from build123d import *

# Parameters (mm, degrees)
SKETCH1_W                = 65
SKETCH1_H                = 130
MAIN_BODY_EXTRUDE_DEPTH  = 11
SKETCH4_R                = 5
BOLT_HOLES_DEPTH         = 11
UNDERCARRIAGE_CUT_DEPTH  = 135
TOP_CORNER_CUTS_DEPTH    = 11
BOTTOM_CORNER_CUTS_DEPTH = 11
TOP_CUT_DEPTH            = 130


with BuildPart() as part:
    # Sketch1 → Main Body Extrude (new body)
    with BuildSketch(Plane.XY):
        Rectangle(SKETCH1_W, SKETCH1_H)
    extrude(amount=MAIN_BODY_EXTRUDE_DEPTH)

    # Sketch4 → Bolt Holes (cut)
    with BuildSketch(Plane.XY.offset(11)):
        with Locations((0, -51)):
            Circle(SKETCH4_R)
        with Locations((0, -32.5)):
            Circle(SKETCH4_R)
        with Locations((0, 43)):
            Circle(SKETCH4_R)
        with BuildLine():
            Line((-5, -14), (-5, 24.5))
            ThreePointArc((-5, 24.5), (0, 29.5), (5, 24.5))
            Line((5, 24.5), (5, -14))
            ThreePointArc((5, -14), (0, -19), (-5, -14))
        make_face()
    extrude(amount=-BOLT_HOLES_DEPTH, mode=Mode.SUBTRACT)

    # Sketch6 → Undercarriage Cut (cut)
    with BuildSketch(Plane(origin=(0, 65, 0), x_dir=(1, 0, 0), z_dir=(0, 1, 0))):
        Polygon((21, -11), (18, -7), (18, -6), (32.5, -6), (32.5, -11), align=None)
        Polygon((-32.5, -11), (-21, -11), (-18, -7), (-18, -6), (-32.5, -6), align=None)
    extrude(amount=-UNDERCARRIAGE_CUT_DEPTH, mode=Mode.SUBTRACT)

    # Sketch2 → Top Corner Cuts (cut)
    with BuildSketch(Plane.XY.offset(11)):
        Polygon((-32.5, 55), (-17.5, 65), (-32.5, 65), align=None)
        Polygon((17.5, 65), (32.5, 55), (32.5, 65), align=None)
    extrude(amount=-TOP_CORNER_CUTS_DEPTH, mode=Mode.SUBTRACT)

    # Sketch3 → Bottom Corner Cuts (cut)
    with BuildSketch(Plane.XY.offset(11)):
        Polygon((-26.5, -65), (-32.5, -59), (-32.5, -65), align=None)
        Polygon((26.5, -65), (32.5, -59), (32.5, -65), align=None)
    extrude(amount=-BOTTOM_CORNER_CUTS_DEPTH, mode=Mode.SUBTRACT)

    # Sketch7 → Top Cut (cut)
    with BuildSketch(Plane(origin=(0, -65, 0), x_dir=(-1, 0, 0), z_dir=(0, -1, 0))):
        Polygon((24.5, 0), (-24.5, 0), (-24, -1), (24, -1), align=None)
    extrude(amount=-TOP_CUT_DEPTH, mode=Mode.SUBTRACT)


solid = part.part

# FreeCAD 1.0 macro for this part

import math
import FreeCAD as App
import Part
import Sketcher

V = App.Vector
Q = App.Units.Quantity

doc = App.newDocument("Part")
body = doc.addObject("PartDesign::Body", "Body")

# Sketch on XY plane
sketch1 = body.newObject("Sketcher::SketchObject", "Sketch")
sketch1.AttachmentSupport = (doc.getObject("XY_Plane"), [""])
sketch1.MapMode = "FlatFace"
sketch1.addGeometry([
    Part.LineSegment(V(-32.5, 65, 0), V(-32.5, -65, 0)),
    Part.LineSegment(V(-32.5, -65, 0), V(32.5, -65, 0)),
    Part.LineSegment(V(32.5, -65, 0), V(32.5, 65, 0)),
    Part.LineSegment(V(32.5, 65, 0), V(-32.5, 65, 0)),
], False)
sketch1.addConstraint([
    Sketcher.Constraint("Coincident", 0, 2, 1, 1),
    Sketcher.Constraint("Coincident", 1, 2, 2, 1),
    Sketcher.Constraint("Coincident", 2, 2, 3, 1),
    Sketcher.Constraint("Coincident", 3, 2, 0, 1),
    Sketcher.Constraint("Vertical", 0),
    Sketcher.Constraint("Horizontal", 1),
    Sketcher.Constraint("Vertical", 2),
    Sketcher.Constraint("Horizontal", 3),
    Sketcher.Constraint("Symmetric", 0, 2, 2, 2, -1, 1),
    Sketcher.Constraint("DistanceX", 1, 1, 1, 2, Q("65 mm")),
    Sketcher.Constraint("DistanceY", 0, 2, 0, 1, Q("130 mm")),
])
pad1 = body.newObject("PartDesign::Pad", "Pad")
pad1.Profile = sketch1
pad1.Length = 11

# Sketch on XY plane
sketch2 = body.newObject("Sketcher::SketchObject", "Sketch001")
sketch2.AttachmentSupport = (doc.getObject("XY_Plane"), [""])
sketch2.MapMode = "FlatFace"
sketch2.AttachmentOffset = App.Placement(V(0, 0, 11), App.Rotation())
sketch2.addGeometry([
    Part.Circle(V(0, -51, 0), V(0, 0, 1), 5),  # 0
    Part.Circle(V(0, -32.5, 0), V(0, 0, 1), 5),  # 1
    Part.Circle(V(0, 43, 0), V(0, 0, 1), 5),  # 2
    Part.LineSegment(V(-5, 24.5, 0), V(-5, -14, 0)),  # 3
    Part.ArcOfCircle(Part.Circle(V(0, -14, 0), V(0, 0, 1), 5), math.radians(180), math.radians(360)),  # 4
    Part.LineSegment(V(5, -14, 0), V(5, 24.5, 0)),  # 5
    Part.ArcOfCircle(Part.Circle(V(0, 24.5, 0), V(0, 0, 1), 5), math.radians(0), math.radians(180)),  # 6
], False)
sketch2.addConstraint([
    Sketcher.Constraint("Tangent", 3, 2, 4, 1),
    Sketcher.Constraint("Tangent", 4, 2, 5, 1),
    Sketcher.Constraint("Tangent", 5, 2, 6, 1),
    Sketcher.Constraint("Tangent", 6, 2, 3, 1),
    Sketcher.Constraint("Vertical", 3),
    Sketcher.Constraint("Vertical", 5),
    Sketcher.Constraint("Equal", 0, 1),
    Sketcher.Constraint("Equal", 1, 2),
    Sketcher.Constraint("Equal", 2, 4),
    Sketcher.Constraint("PointOnObject", 0, 3, -2),
    Sketcher.Constraint("PointOnObject", 1, 3, -2),
    Sketcher.Constraint("PointOnObject", 2, 3, -2),
    Sketcher.Constraint("PointOnObject", 4, 3, -2),
    Sketcher.Constraint("Diameter", 0, Q("10 mm")),
    Sketcher.Constraint("DistanceY", 3, 2, 3, 1, Q("38.5 mm")),
    Sketcher.Constraint("DistanceY", 0, 3, -1, 1, Q("51 mm")),
    Sketcher.Constraint("DistanceY", -1, 1, 2, 3, Q("43 mm")),
    Sketcher.Constraint("DistanceY", 4, 3, -1, 1, Q("14 mm")),
    Sketcher.Constraint("DistanceY", 1, 3, 6, 3, Q("57 mm")),
])
pocket1 = body.newObject("PartDesign::Pocket", "Pocket")
pocket1.Profile = sketch2
pocket1.Length = 11

# Sketch on XZ plane
sketch3 = body.newObject("Sketcher::SketchObject", "Sketch002")
sketch3.AttachmentSupport = (doc.getObject("XZ_Plane"), [""])
sketch3.MapMode = "FlatFace"
sketch3.AttachmentOffset = App.Placement(V(0, 0, -65), App.Rotation())
sketch3.addGeometry([
    Part.LineSegment(V(18, 7, 0), V(21, 11, 0)),  # 0
    Part.LineSegment(V(21, 11, 0), V(32.5, 11, 0)),  # 1
    Part.LineSegment(V(32.5, 11, 0), V(32.5, 6, 0)),  # 2
    Part.LineSegment(V(32.5, 6, 0), V(18, 6, 0)),  # 3
    Part.LineSegment(V(18, 6, 0), V(18, 7, 0)),  # 4
    Part.LineSegment(V(-32.5, 11, 0), V(-21, 11, 0)),  # 5
    Part.LineSegment(V(-21, 11, 0), V(-18, 7, 0)),  # 6
    Part.LineSegment(V(-18, 7, 0), V(-18, 6, 0)),  # 7
    Part.LineSegment(V(-18, 6, 0), V(-32.5, 6, 0)),  # 8
    Part.LineSegment(V(-32.5, 6, 0), V(-32.5, 11, 0)),  # 9
], False)
sketch3.addConstraint([
    Sketcher.Constraint("Coincident", 0, 2, 1, 1),
    Sketcher.Constraint("Coincident", 1, 2, 2, 1),
    Sketcher.Constraint("Coincident", 2, 2, 3, 1),
    Sketcher.Constraint("Coincident", 3, 2, 4, 1),
    Sketcher.Constraint("Coincident", 4, 2, 0, 1),
    Sketcher.Constraint("Coincident", 5, 2, 6, 1),
    Sketcher.Constraint("Coincident", 6, 2, 7, 1),
    Sketcher.Constraint("Coincident", 7, 2, 8, 1),
    Sketcher.Constraint("Coincident", 8, 2, 9, 1),
    Sketcher.Constraint("Coincident", 9, 2, 5, 1),
    Sketcher.Constraint("Horizontal", 1),
    Sketcher.Constraint("Vertical", 2),
    Sketcher.Constraint("Horizontal", 3),
    Sketcher.Constraint("Vertical", 4),
    Sketcher.Constraint("Horizontal", 5),
    Sketcher.Constraint("Vertical", 7),
    Sketcher.Constraint("Horizontal", 8),
    Sketcher.Constraint("Vertical", 9),
    Sketcher.Constraint("Symmetric", 0, 2, 5, 2, -2),
    Sketcher.Constraint("Symmetric", 4, 2, 6, 2, -2),
    Sketcher.Constraint("Symmetric", 2, 2, 8, 2, -2),
    Sketcher.Constraint("DistanceY", 2, 2, 2, 1, Q("5 mm")),
    Sketcher.Constraint("DistanceY", 4, 1, 4, 2, Q("1 mm")),
    Sketcher.Constraint("Distance", 0, Q("5 mm")),
    Sketcher.Constraint("DistanceX", 1, 1, 1, 2, Q("11.5 mm")),
    Sketcher.Constraint("DistanceX", -1, 1, 0, 2, Q("21 mm")),
    Sketcher.Constraint("DistanceY", -1, 1, 0, 2, Q("11 mm")),
])
pocket2 = body.newObject("PartDesign::Pocket", "Pocket001")
pocket2.Profile = sketch3
pocket2.Length = 135
pocket2.Reversed = True

# Sketch on XY plane
sketch4 = body.newObject("Sketcher::SketchObject", "Sketch003")
sketch4.AttachmentSupport = (doc.getObject("XY_Plane"), [""])
sketch4.MapMode = "FlatFace"
sketch4.AttachmentOffset = App.Placement(V(0, 0, 11), App.Rotation())
sketch4.addGeometry([
    Part.LineSegment(V(-32.5, 55, 0), V(-17.5, 65, 0)),  # 0
    Part.LineSegment(V(-17.5, 65, 0), V(-32.5, 65, 0)),  # 1
    Part.LineSegment(V(-32.5, 65, 0), V(-32.5, 55, 0)),  # 2
    Part.LineSegment(V(17.5, 65, 0), V(32.5, 55, 0)),  # 3
    Part.LineSegment(V(32.5, 55, 0), V(32.5, 65, 0)),  # 4
    Part.LineSegment(V(32.5, 65, 0), V(17.5, 65, 0)),  # 5
], False)
sketch4.addConstraint([
    Sketcher.Constraint("Coincident", 0, 2, 1, 1),
    Sketcher.Constraint("Coincident", 1, 2, 2, 1),
    Sketcher.Constraint("Coincident", 2, 2, 0, 1),
    Sketcher.Constraint("Coincident", 3, 2, 4, 1),
    Sketcher.Constraint("Coincident", 4, 2, 5, 1),
    Sketcher.Constraint("Coincident", 5, 2, 3, 1),
    Sketcher.Constraint("Horizontal", 1),
    Sketcher.Constraint("Vertical", 2),
    Sketcher.Constraint("Vertical", 4),
    Sketcher.Constraint("Horizontal", 5),
    Sketcher.Constraint("Symmetric", 2, 2, 3, 2, -2),
    Sketcher.Constraint("Symmetric", 0, 2, 5, 2, -2),
    Sketcher.Constraint("DistanceX", 1, 2, 1, 1, Q("15 mm")),
    Sketcher.Constraint("DistanceY", 2, 2, 2, 1, Q("10 mm")),
    Sketcher.Constraint("DistanceY", -1, 1, 0, 2, Q("65 mm")),
    Sketcher.Constraint("DistanceX", 0, 2, 3, 2, Q("50 mm")),
])
pocket3 = body.newObject("PartDesign::Pocket", "Pocket002")
pocket3.Profile = sketch4
pocket3.Length = 11

# Sketch on XY plane
sketch5 = body.newObject("Sketcher::SketchObject", "Sketch004")
sketch5.AttachmentSupport = (doc.getObject("XY_Plane"), [""])
sketch5.MapMode = "FlatFace"
sketch5.AttachmentOffset = App.Placement(V(0, 0, 11), App.Rotation())
sketch5.addGeometry([
    Part.LineSegment(V(-26.5, -65, 0), V(-32.5, -59, 0)),  # 0
    Part.LineSegment(V(-32.5, -59, 0), V(-32.5, -65, 0)),  # 1
    Part.LineSegment(V(-32.5, -65, 0), V(-26.5, -65, 0)),  # 2
    Part.LineSegment(V(32.5, -59, 0), V(26.5, -65, 0)),  # 3
    Part.LineSegment(V(26.5, -65, 0), V(32.5, -65, 0)),  # 4
    Part.LineSegment(V(32.5, -65, 0), V(32.5, -59, 0)),  # 5
], False)
sketch5.addConstraint([
    Sketcher.Constraint("Coincident", 0, 2, 1, 1),
    Sketcher.Constraint("Coincident", 1, 2, 2, 1),
    Sketcher.Constraint("Coincident", 2, 2, 0, 1),
    Sketcher.Constraint("Coincident", 3, 2, 4, 1),
    Sketcher.Constraint("Coincident", 4, 2, 5, 1),
    Sketcher.Constraint("Coincident", 5, 2, 3, 1),
    Sketcher.Constraint("Vertical", 1),
    Sketcher.Constraint("Horizontal", 2),
    Sketcher.Constraint("Horizontal", 4),
    Sketcher.Constraint("Vertical", 5),
    Sketcher.Constraint("Symmetric", 2, 2, 3, 2, -2),
    Sketcher.Constraint("Symmetric", 0, 2, 5, 2, -2),
    Sketcher.Constraint("Perpendicular", 0, 3),
    Sketcher.Constraint("DistanceX", 2, 1, 2, 2, Q("6 mm")),
    Sketcher.Constraint("DistanceY", 0, 2, -1, 1, Q("59 mm")),
    Sketcher.Constraint("DistanceX", 2, 2, 3, 2, Q("53 mm")),
])
pocket4 = body.newObject("PartDesign::Pocket", "Pocket003")
pocket4.Profile = sketch5
pocket4.Length = 11

# Sketch on XZ plane
sketch6 = body.newObject("Sketcher::SketchObject", "Sketch005")
sketch6.AttachmentSupport = (doc.getObject("XZ_Plane"), [""])
sketch6.MapMode = "FlatFace"
sketch6.AttachmentOffset = App.Placement(V(0, 0, 65), App.Rotation())
sketch6.addGeometry([
    Part.LineSegment(V(-24.5, 0, 0), V(24.5, 0, 0)),
    Part.LineSegment(V(24.5, 0, 0), V(24, 1, 0)),
    Part.LineSegment(V(24, 1, 0), V(-24, 1, 0)),
    Part.LineSegment(V(-24, 1, 0), V(-24.5, 0, 0)),
], False)
sketch6.addConstraint([
    Sketcher.Constraint("Coincident", 0, 2, 1, 1),
    Sketcher.Constraint("Coincident", 1, 2, 2, 1),
    Sketcher.Constraint("Coincident", 2, 2, 3, 1),
    Sketcher.Constraint("Coincident", 3, 2, 0, 1),
    Sketcher.Constraint("Horizontal", 0),
    Sketcher.Constraint("Horizontal", 2),
    Sketcher.Constraint("Symmetric", 0, 2, 3, 2, -1, 1),
    Sketcher.Constraint("Equal", 1, 3),
    Sketcher.Constraint("DistanceX", 0, 1, 0, 2, Q("49 mm")),
    Sketcher.Constraint("DistanceX", 2, 2, 2, 1, Q("48 mm")),
    Sketcher.Constraint("DistanceY", -1, 1, 1, 2, Q("1 mm")),
])
pocket5 = body.newObject("PartDesign::Pocket", "Pocket004")
pocket5.Profile = sketch6
pocket5.Length = 130

doc.recompute()
